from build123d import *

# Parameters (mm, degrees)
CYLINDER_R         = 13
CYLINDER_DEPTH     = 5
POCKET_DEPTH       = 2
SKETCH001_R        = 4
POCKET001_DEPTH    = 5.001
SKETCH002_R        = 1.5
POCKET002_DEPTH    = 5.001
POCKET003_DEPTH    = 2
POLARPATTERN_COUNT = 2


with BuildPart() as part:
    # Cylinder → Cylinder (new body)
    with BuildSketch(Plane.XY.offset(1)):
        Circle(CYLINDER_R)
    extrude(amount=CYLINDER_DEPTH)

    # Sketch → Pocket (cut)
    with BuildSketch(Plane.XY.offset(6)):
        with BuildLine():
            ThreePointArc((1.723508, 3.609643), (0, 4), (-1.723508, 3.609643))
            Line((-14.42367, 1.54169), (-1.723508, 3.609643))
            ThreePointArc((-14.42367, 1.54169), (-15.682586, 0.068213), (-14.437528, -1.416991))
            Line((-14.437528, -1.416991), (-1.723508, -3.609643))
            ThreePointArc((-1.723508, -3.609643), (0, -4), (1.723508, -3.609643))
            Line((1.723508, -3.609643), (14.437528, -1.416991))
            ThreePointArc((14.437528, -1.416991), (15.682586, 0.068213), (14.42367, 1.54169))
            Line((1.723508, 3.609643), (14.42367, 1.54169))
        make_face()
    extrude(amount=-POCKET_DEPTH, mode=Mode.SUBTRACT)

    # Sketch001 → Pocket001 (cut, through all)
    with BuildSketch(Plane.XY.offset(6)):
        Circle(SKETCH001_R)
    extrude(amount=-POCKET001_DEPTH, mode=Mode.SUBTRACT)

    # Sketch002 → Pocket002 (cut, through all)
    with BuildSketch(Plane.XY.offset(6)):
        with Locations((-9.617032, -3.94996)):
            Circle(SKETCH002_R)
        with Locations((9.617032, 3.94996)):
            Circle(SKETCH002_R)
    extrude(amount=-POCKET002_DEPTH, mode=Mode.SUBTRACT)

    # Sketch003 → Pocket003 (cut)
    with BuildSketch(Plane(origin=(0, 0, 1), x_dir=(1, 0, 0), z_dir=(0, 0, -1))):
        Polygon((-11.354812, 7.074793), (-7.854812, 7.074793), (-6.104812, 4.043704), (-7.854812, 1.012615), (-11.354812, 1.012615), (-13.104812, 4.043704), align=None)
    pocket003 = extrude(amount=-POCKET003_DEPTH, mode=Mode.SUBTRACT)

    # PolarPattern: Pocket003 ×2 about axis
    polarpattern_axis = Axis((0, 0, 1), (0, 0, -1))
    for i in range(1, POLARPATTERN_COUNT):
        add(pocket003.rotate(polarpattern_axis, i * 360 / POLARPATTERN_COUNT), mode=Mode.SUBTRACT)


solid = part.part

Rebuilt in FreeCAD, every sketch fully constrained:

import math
import FreeCAD as App
import Part
import Sketcher

V = App.Vector
Q = App.Units.Quantity


def add_polygon(sketch, points):
    """Adds a closed chain of lines whose ends are joined by coincident constraints."""
    first, n = sketch.GeometryCount, len(points)
    for a, b in zip(points, points[1:] + points[:1]):
        sketch.addGeometry(Part.LineSegment(App.Vector(*a, 0), App.Vector(*b, 0)), False)
    for i in range(n):
        sketch.addConstraint(Sketcher.Constraint("Coincident", first + i, 2, first + (i + 1) % n, 1))

doc = App.newDocument("Part")
body = doc.addObject("PartDesign::Body", "Body")

# Sketch on XY plane
sketch1 = doc.addObject("Sketcher::SketchObject", "Sketch")
body.addObject(sketch1)
sketch1.AttachmentSupport = (doc.XY_Plane, [""])
sketch1.MapMode = "FlatFace"
sketch1.AttachmentOffset = App.Placement(V(0, 0, 1), App.Rotation())
sketch1.addGeometry(Part.Circle(V(0, 0, 0), V(0, 0, 1), 13), False)
sketch1.addConstraint(Sketcher.Constraint("Coincident", 0, 3, -1, 1))
sketch1.addConstraint(Sketcher.Constraint("Diameter", 0, 26.0))
pad1 = doc.addObject("PartDesign::Pad", "Pad")
body.addObject(pad1)
pad1.Profile = sketch1
pad1.Length = 5

# Sketch on XY plane
sketch2 = doc.addObject("Sketcher::SketchObject", "Sketch001")
body.addObject(sketch2)
sketch2.AttachmentSupport = (doc.XY_Plane, [""])
sketch2.MapMode = "FlatFace"
sketch2.AttachmentOffset = App.Placement(V(0, 0, 6), App.Rotation())
sketch2.addGeometry(Part.ArcOfCircle(Part.Circle(V(0, 0, 0), V(0, 0, 1), 4), math.radians(64), math.radians(116)), False)
sketch2.addGeometry(Part.LineSegment(V(-1.7, 3.6, 0), V(-14.4, 1.5, 0)), False)
sketch2.addGeometry(Part.ArcOfCircle(Part.Circle(V(-14.2, 0.1, 0), V(0, 0, 1), 1.5), math.radians(99), math.radians(260)), False)
sketch2.addGeometry(Part.LineSegment(V(-14.4, -1.4, 0), V(-1.7, -3.6, 0)), False)
sketch2.addGeometry(Part.ArcOfCircle(Part.Circle(V(0, 0, 0), V(0, 0, 1), 4), math.radians(-116), math.radians(-64)), False)
sketch2.addGeometry(Part.LineSegment(V(1.7, -3.6, 0), V(14.4, -1.4, 0)), False)
sketch2.addGeometry(Part.ArcOfCircle(Part.Circle(V(14.2, 0.1, 0), V(0, 0, 1), 1.5), math.radians(-80), math.radians(81)), False)
sketch2.addGeometry(Part.LineSegment(V(14.4, 1.5, 0), V(1.7, 3.6, 0)), False)
sketch2.addConstraint(Sketcher.Constraint("Coincident", 0, 2, 1, 1))
sketch2.addConstraint(Sketcher.Constraint("Tangent", 1, 2, 2, 1))
sketch2.addConstraint(Sketcher.Constraint("Tangent", 2, 2, 3, 1))
sketch2.addConstraint(Sketcher.Constraint("Coincident", 3, 2, 4, 1))
sketch2.addConstraint(Sketcher.Constraint("Coincident", 4, 2, 5, 1))
sketch2.addConstraint(Sketcher.Constraint("Tangent", 5, 2, 6, 1))
sketch2.addConstraint(Sketcher.Constraint("Tangent", 6, 2, 7, 1))
sketch2.addConstraint(Sketcher.Constraint("Coincident", 7, 2, 0, 1))
sketch2.addConstraint(Sketcher.Constraint("Coincident", 0, 3, -1, 1))
sketch2.addConstraint(Sketcher.Constraint("Coincident", 4, 3, -1, 1))
sketch2.addConstraint(Sketcher.Constraint("Equal", 0, 4))
sketch2.addConstraint(Sketcher.Constraint("Equal", 2, 6))
sketch2.addConstraint(Sketcher.Constraint("Symmetric", 2, 3, 6, 3, -2))
sketch2.addConstraint(Sketcher.Constraint("Horizontal", 3, 2, 4, 2))
sketch2.addConstraint(Sketcher.Constraint("Horizontal", 1, 2, 6, 2))
sketch2.addConstraint(Sketcher.Constraint("Vertical", 0, 2, 3, 2))
sketch2.addConstraint(Sketcher.Constraint("Radius", 2, 1.5))
sketch2.addConstraint(Sketcher.Constraint("Radius", 0, 4.000003))
sketch2.addConstraint(Sketcher.Constraint("Distance", 1, 12.867422))
sketch2.addConstraint(Sketcher.Constraint("DistanceX", 1, 2, -1, 1, 14.42367))
sketch2.addConstraint(Sketcher.Constraint("DistanceY", -1, 1, 1, 2, 1.54169))
pocket1 = doc.addObject("PartDesign::Pocket", "Pocket")
body.addObject(pocket1)
pocket1.Profile = sketch2
pocket1.Length = 2

# Sketch on XY plane
sketch3 = doc.addObject("Sketcher::SketchObject", "Sketch002")
body.addObject(sketch3)
sketch3.AttachmentSupport = (doc.XY_Plane, [""])
sketch3.MapMode = "FlatFace"
sketch3.AttachmentOffset = App.Placement(V(0, 0, 6), App.Rotation())
sketch3.addGeometry(Part.Circle(V(0, 0, 0), V(0, 0, 1), 4), False)
sketch3.addConstraint(Sketcher.Constraint("Coincident", 0, 3, -1, 1))
sketch3.addConstraint(Sketcher.Constraint("Diameter", 0, 8.0))
pocket2 = doc.addObject("PartDesign::Pocket", "Pocket001")
body.addObject(pocket2)
pocket2.Profile = sketch3
pocket2.Type = "ThroughAll"

# Sketch on XY plane
sketch4 = doc.addObject("Sketcher::SketchObject", "Sketch003")
body.addObject(sketch4)
sketch4.AttachmentSupport = (doc.XY_Plane, [""])
sketch4.MapMode = "FlatFace"
sketch4.AttachmentOffset = App.Placement(V(0, 0, 6), App.Rotation())
sketch4.addGeometry(Part.Circle(V(-9.6, -3.9, 0), V(0, 0, 1), 1.5), False)
sketch4.addGeometry(Part.Circle(V(9.6, 3.9, 0), V(0, 0, 1), 1.5), False)
sketch4.addConstraint(Sketcher.Constraint("Equal", 0, 1))
sketch4.addConstraint(Sketcher.Constraint("Symmetric", 0, 3, 1, 3, -1, 1))
sketch4.addConstraint(Sketcher.Constraint("Diameter", 0, 3.0))
sketch4.addConstraint(Sketcher.Constraint("DistanceY", 0, 3, -1, 1, 3.94996))
sketch4.addConstraint(Sketcher.Constraint("DistanceX", 0, 3, -1, 1, 9.617032))
pocket3 = doc.addObject("PartDesign::Pocket", "Pocket002")
body.addObject(pocket3)
pocket3.Profile = sketch4
pocket3.Type = "ThroughAll"

# Sketch on XY plane
sketch5 = doc.addObject("Sketcher::SketchObject", "Sketch004")
body.addObject(sketch5)
sketch5.AttachmentSupport = (doc.XY_Plane, [""])
sketch5.MapMode = "FlatFace"
sketch5.AttachmentOffset = App.Placement(V(0, 0, 1), App.Rotation())
add_polygon(sketch5, [(-7.9, -7.1), (-11.4, -7.1), (-13.1, -4), (-11.4, -1), (-7.9, -1), (-6.1, -4)])  # lines 0-5
sketch5.addConstraint(Sketcher.Constraint("Horizontal", 0))
sketch5.addConstraint(Sketcher.Constraint("Horizontal", 3))
sketch5.addConstraint(Sketcher.Constraint("Parallel", 1, 4))
sketch5.addConstraint(Sketcher.Constraint("Parallel", 2, 5))
sketch5.addConstraint(Sketcher.Constraint("Horizontal", 1, 2, 4, 2))
sketch5.addConstraint(Sketcher.Constraint("Vertical", 0, 2, 2, 2))
sketch5.addConstraint(Sketcher.Constraint("Vertical", 3, 2, 5, 2))
sketch5.addConstraint(Sketcher.Constraint("Angle", 1, Q("119.999999 deg")))
sketch5.addConstraint(Sketcher.Constraint("DistanceX", 0, 2, 0, 1, 3.5))
sketch5.addConstraint(Sketcher.Constraint("DistanceX", 1, 2, 4, 2, 7.0))
sketch5.addConstraint(Sketcher.Constraint("DistanceX", 0, 2, -1, 1, 11.354812))
sketch5.addConstraint(Sketcher.Constraint("DistanceY", 0, 2, -1, 1, 7.074793))
pocket4 = doc.addObject("PartDesign::Pocket", "Pocket003")
body.addObject(pocket4)
pocket4.Profile = sketch5
pocket4.Length = 2
pocket4.Reversed = True
doc.recompute()

polarpattern = doc.addObject("PartDesign::PolarPattern", "PolarPattern")
body.addObject(polarpattern)
polarpattern.Originals = [pocket4]
polarpattern.Axis = (doc.Z_Axis, [""])
polarpattern.Angle = 360
polarpattern.Occurrences = 2
body.Tip = polarpattern

doc.recompute()
